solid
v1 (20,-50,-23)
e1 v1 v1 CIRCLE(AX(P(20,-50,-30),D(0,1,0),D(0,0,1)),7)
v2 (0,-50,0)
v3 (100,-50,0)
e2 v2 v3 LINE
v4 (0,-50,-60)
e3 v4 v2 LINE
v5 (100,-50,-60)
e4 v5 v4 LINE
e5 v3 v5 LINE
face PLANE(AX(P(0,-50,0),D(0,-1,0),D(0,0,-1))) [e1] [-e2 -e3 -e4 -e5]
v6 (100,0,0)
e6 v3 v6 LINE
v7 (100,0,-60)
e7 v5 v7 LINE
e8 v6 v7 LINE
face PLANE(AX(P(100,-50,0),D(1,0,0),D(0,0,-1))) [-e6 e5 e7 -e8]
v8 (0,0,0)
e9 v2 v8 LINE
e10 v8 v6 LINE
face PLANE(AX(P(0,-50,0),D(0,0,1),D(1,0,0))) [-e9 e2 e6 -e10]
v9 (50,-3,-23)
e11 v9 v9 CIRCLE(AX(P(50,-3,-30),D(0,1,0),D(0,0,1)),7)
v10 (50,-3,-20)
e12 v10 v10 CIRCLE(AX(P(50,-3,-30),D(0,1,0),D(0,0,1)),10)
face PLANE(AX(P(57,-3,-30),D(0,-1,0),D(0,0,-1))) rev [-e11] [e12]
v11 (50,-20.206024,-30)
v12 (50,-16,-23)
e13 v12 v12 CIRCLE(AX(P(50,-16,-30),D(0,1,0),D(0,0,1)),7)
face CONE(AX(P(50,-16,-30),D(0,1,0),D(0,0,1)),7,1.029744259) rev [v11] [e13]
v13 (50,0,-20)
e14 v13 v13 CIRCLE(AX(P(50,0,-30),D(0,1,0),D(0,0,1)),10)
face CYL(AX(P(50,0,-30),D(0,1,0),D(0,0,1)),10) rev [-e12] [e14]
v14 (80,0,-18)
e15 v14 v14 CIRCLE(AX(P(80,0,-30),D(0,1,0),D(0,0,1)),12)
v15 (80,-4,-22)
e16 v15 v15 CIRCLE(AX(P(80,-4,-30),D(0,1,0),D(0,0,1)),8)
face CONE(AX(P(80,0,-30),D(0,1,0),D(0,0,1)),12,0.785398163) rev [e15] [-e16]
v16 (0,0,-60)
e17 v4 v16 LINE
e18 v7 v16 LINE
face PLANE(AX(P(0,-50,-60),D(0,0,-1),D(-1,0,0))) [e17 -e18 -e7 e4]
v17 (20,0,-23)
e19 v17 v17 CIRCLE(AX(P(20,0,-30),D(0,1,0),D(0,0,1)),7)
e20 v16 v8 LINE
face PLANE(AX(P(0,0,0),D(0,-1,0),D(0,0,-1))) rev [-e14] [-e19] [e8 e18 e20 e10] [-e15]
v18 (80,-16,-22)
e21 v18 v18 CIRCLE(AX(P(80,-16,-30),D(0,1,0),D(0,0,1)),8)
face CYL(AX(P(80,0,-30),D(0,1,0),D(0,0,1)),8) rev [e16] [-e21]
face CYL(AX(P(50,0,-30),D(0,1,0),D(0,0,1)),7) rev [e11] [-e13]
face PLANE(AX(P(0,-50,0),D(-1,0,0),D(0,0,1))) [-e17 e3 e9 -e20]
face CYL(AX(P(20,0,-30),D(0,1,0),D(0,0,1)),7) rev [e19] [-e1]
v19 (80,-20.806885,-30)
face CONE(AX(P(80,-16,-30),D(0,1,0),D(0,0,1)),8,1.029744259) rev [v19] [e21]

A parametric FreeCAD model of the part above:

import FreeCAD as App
import Part
import Sketcher


def add_polygon(sketch, points):
    """Adds a closed chain of lines whose ends are joined by coincident constraints."""
    first, n = sketch.GeometryCount, len(points)
    for a, b in zip(points, points[1:] + points[:1]):
        sketch.addGeometry(Part.LineSegment(App.Vector(*a, 0), App.Vector(*b, 0)), False)
    for i in range(n):
        sketch.addConstraint(Sketcher.Constraint("Coincident", first + i, 2, first + (i + 1) % n, 1))

doc = App.newDocument("Part")
params = doc.addObject("Spreadsheet::Sheet", "Params")
for row, (alias, value) in enumerate([
    ("sketch1_width", "100 mm"),
    ("sketch1_height", "60 mm"),
    ("pad1_length", "50 mm"),
    ("sketch2_diameter", "14 mm"),
    ("hole_diameter", "14 mm"),
    ("hole_depth", "16 mm"),
    ("hole_cbore_diameter", "20 mm"),
    ("hole_cbore_depth", "3 mm"),
    ("sketch3_diameter", "16 mm"),
    ("hole2_diameter", "16 mm"),
    ("hole2_depth", "16 mm"),
    ("hole2_csink_diameter", "24 mm"),
    ("sketch4_diameter", "14 mm"),
    ("hole3_diameter", "14 mm"),
], start=1):
    params.set(f"A{row}", alias)
    params.set(f"B{row}", "=" + value)
    params.setAlias(f"B{row}", alias)

body = doc.addObject("PartDesign::Body", "Body")

sketch1 = body.newObject("Sketcher::SketchObject", "Sketch")
sketch1.AttachmentSupport = (doc.getObject("XZ_Plane"), [""])
sketch1.MapMode = "FlatFace"
add_polygon(sketch1, [(0, -60), (0, 0), (100, 0), (100, -60)])
sketch1.addConstraint(Sketcher.Constraint("Vertical", 0))
sketch1.addConstraint(Sketcher.Constraint("Horizontal", 1))
sketch1.addConstraint(Sketcher.Constraint("Vertical", 2))
sketch1.addConstraint(Sketcher.Constraint("Horizontal", 3))
sketch1.addConstraint(Sketcher.Constraint("Coincident", 0, 2, -1, 1))
sketch1.addConstraint(Sketcher.Constraint("DistanceX", 1, 1, 1, 2, 100.0))
sketch1.addConstraint(Sketcher.Constraint("DistanceY", 0, 1, 0, 2, 60.0))
sketch1.setExpression("Constraints[9]", "Params.sketch1_width")
sketch1.setExpression("Constraints[10]", "Params.sketch1_height")
pad1 = body.newObject("PartDesign::Pad", "Pad")
pad1.Profile = sketch1
pad1.setExpression("Length", "Params.pad1_length")

sketch2 = body.newObject("Sketcher::SketchObject", "Sketch001")
sketch2.AttachmentSupport = (doc.getObject("XZ_Plane"), [""])
sketch2.MapMode = "FlatFace"
sketch2.addGeometry(Part.Circle(App.Vector(50, -30, 0), App.Vector(0, 0, 1), 7), False)
sketch2.addConstraint(Sketcher.Constraint("Diameter", 0, 14.0))
sketch2.addConstraint(Sketcher.Constraint("DistanceX", -1, 1, 0, 3, 50.0))
sketch2.addConstraint(Sketcher.Constraint("DistanceY", 0, 3, -1, 1, 30.0))
sketch2.setExpression("Constraints[0]", "Params.sketch2_diameter")
doc.recompute()
hole = body.newObject("PartDesign::Hole", "Hole")
hole.Profile = sketch2
hole.ThreadType = "None"
hole.setExpression("Diameter", "Params.hole_diameter")
hole.DepthType = "Dimension"
hole.setExpression("Depth", "Params.hole_depth")
hole.DrillPoint = "Angled"
hole.DrillPointAngle = 118
hole.HoleCutType = "Counterbore"
hole.setExpression("HoleCutDiameter", "Params.hole_cbore_diameter")
hole.setExpression("HoleCutDepth", "Params.hole_cbore_depth")
hole.Reversed = True

sketch3 = body.newObject("Sketcher::SketchObject", "Sketch002")
sketch3.AttachmentSupport = (doc.getObject("XZ_Plane"), [""])
sketch3.MapMode = "FlatFace"
sketch3.addGeometry(Part.Circle(App.Vector(80, -30, 0), App.Vector(0, 0, 1), 8), False)
sketch3.addConstraint(Sketcher.Constraint("Diameter", 0, 16.0))
sketch3.addConstraint(Sketcher.Constraint("DistanceX", -1, 1, 0, 3, 80.0))
sketch3.addConstraint(Sketcher.Constraint("DistanceY", 0, 3, -1, 1, 30.0))
sketch3.setExpression("Constraints[0]", "Params.sketch3_diameter")
doc.recompute()
hole2 = body.newObject("PartDesign::Hole", "Hole001")
hole2.Profile = sketch3
hole2.ThreadType = "None"
hole2.setExpression("Diameter", "Params.hole2_diameter")
hole2.DepthType = "Dimension"
hole2.setExpression("Depth", "Params.hole2_depth")
hole2.DrillPoint = "Angled"
hole2.DrillPointAngle = 118
hole2.HoleCutType = "Countersink"
hole2.setExpression("HoleCutDiameter", "Params.hole2_csink_diameter")
hole2.HoleCutCountersinkAngle = 90
hole2.Reversed = True

sketch4 = body.newObject("Sketcher::SketchObject", "Sketch003")
sketch4.AttachmentSupport = (doc.getObject("XZ_Plane"), [""])
sketch4.MapMode = "FlatFace"
sketch4.addGeometry(Part.Circle(App.Vector(20, -30, 0), App.Vector(0, 0, 1), 7), False)
sketch4.addConstraint(Sketcher.Constraint("Diameter", 0, 14.0))
sketch4.addConstraint(Sketcher.Constraint("DistanceX", -1, 1, 0, 3, 20.0))
sketch4.addConstraint(Sketcher.Constraint("DistanceY", 0, 3, -1, 1, 30.0))
sketch4.setExpression("Constraints[0]", "Params.sketch4_diameter")
doc.recompute()
hole3 = body.newObject("PartDesign::Hole", "Hole002")
hole3.Profile = sketch4
hole3.ThreadType = "None"
hole3.setExpression("Diameter", "Params.hole3_diameter")
hole3.DepthType = "ThroughAll"
hole3.Reversed = True

doc.recompute()
